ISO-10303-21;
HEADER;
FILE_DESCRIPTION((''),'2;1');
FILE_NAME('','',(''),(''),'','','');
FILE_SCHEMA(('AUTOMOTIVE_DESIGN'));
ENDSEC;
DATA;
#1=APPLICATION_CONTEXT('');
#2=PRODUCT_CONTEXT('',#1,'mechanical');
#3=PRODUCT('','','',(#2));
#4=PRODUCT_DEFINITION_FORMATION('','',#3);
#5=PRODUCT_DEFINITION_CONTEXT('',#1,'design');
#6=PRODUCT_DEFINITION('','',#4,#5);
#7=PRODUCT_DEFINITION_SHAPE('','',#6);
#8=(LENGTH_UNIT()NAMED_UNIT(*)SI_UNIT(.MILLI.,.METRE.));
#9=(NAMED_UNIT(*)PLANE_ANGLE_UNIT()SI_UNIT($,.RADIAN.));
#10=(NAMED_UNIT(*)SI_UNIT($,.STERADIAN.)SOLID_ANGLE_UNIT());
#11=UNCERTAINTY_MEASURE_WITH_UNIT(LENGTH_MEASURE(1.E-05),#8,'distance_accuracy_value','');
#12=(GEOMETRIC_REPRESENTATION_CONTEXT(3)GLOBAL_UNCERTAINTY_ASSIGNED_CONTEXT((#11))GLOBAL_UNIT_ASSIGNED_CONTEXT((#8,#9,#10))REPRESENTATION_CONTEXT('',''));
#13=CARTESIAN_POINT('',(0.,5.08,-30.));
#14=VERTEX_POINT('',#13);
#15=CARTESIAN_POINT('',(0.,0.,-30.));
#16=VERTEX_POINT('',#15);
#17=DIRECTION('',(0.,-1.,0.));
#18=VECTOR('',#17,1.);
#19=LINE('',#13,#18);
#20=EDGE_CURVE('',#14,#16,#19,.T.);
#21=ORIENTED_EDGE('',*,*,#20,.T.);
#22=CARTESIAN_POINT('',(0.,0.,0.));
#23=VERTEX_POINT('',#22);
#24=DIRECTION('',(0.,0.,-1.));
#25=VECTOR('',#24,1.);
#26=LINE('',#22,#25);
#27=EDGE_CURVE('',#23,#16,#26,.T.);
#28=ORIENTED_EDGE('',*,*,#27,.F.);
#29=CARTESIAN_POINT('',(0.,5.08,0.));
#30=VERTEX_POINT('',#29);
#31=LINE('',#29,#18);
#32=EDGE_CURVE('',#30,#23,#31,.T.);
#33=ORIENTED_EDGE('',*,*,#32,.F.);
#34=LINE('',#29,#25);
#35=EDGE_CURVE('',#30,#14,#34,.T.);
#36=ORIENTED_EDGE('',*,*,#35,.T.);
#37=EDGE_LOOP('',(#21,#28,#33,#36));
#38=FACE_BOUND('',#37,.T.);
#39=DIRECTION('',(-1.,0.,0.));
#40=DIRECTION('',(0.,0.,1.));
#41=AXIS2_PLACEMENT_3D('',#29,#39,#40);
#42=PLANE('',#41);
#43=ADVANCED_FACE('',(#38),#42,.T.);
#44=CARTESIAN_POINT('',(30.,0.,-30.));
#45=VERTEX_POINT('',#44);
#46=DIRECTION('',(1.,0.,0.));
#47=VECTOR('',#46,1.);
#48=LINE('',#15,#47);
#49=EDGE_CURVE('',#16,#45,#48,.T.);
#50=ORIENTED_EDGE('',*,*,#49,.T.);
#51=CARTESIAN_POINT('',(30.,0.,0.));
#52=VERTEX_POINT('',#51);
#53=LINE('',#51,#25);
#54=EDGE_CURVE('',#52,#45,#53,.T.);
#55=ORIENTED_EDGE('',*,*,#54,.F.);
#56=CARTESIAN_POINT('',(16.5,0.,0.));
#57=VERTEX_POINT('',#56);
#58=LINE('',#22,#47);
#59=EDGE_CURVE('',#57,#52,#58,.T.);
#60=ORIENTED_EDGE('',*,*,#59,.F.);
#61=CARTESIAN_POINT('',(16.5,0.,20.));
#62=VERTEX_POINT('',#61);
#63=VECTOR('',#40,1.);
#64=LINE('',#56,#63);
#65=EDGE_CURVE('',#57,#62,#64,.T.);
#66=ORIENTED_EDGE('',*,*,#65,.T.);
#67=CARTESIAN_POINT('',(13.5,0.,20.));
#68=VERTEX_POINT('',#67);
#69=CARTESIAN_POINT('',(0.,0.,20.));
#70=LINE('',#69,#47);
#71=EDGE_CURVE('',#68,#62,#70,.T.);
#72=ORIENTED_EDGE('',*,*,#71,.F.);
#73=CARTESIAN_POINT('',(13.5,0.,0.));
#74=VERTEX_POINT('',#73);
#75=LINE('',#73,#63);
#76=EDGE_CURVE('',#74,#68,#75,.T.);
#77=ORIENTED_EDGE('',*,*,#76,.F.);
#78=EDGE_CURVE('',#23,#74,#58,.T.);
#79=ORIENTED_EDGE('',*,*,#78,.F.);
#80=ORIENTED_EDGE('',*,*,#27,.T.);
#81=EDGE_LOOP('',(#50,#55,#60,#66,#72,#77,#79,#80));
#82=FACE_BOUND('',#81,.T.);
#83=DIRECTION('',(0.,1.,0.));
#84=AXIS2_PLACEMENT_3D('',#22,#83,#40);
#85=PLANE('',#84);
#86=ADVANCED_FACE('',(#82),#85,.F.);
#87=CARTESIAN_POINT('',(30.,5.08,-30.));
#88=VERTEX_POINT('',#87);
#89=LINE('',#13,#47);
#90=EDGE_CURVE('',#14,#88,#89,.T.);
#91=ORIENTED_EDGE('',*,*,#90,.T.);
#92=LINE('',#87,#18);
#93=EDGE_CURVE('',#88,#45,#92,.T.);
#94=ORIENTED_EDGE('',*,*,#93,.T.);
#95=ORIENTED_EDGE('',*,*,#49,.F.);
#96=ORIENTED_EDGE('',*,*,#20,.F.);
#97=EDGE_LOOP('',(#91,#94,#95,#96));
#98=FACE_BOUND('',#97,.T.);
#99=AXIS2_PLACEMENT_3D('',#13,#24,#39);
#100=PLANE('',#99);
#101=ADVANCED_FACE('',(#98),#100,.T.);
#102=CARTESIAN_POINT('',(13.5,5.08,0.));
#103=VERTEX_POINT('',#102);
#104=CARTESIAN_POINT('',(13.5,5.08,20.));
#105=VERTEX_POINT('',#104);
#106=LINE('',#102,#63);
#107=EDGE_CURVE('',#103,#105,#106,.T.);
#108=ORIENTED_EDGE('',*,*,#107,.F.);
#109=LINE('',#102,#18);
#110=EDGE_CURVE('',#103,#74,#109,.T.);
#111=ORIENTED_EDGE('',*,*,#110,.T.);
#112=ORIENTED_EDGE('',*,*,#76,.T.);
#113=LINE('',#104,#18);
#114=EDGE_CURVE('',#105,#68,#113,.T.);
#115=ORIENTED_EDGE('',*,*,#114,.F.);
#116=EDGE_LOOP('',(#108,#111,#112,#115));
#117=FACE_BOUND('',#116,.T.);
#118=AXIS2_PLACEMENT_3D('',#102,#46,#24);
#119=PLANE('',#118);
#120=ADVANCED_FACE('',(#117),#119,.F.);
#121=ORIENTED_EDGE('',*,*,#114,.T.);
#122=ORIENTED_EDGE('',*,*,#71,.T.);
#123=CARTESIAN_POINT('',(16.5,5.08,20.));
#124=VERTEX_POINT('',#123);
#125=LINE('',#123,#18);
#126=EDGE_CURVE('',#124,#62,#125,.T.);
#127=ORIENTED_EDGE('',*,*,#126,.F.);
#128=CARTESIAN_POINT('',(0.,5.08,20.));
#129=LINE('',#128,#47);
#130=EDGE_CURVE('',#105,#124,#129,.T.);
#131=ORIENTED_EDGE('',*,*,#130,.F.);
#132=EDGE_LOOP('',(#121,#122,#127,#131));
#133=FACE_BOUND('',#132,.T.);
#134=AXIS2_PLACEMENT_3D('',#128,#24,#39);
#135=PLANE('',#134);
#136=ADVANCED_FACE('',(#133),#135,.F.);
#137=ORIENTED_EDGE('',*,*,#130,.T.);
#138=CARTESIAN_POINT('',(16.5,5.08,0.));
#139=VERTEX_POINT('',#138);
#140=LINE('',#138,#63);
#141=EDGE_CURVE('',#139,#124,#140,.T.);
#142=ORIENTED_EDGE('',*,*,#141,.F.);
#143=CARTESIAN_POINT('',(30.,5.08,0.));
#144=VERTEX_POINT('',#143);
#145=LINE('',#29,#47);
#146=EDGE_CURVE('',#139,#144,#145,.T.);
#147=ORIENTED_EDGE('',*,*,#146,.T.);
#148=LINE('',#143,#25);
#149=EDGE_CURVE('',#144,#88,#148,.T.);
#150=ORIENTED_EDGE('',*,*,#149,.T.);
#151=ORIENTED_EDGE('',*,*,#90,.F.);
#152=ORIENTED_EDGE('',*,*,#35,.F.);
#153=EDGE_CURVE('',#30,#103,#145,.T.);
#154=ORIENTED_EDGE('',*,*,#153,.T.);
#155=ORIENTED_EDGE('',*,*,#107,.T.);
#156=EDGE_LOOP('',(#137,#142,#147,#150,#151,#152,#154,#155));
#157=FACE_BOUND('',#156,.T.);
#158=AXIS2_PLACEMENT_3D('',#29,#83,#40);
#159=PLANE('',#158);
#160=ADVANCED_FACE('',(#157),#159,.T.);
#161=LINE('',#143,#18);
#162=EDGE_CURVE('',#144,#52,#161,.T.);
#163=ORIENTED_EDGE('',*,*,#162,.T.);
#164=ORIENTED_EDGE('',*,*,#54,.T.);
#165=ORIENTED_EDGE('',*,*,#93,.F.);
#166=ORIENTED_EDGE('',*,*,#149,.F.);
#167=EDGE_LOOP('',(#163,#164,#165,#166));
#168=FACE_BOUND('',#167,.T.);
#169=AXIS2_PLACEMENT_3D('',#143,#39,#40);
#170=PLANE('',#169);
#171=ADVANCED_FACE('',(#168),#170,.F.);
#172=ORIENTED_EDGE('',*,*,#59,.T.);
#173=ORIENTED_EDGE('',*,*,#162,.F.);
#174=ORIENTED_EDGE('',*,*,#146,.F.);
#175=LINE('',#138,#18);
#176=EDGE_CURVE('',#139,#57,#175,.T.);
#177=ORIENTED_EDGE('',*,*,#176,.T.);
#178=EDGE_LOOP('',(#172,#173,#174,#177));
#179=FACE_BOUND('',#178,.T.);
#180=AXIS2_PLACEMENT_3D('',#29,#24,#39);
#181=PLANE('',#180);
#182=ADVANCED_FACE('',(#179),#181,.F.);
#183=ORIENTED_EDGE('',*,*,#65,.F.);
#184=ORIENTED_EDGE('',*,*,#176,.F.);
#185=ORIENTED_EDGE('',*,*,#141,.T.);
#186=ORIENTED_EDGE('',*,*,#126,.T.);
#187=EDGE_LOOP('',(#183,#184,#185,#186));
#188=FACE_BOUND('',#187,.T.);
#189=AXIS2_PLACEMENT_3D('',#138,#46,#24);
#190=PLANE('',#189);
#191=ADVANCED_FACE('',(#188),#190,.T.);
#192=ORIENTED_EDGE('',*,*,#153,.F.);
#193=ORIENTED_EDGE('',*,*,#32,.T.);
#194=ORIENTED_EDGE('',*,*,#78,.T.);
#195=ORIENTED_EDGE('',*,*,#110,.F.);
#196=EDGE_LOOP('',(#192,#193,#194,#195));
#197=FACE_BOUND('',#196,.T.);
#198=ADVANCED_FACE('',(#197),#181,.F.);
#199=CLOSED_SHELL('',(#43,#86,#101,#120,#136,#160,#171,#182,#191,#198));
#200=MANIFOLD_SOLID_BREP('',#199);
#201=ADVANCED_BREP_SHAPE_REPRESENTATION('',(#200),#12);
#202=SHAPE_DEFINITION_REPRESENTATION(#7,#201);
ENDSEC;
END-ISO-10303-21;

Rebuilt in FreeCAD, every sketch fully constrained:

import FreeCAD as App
import Part
import Sketcher
from FreeCAD import Vector

doc = App.newDocument("Part")
body = doc.addObject("PartDesign::Body", "Body")

# Sketch on XZ plane
sketch1 = body.newObject("Sketcher::SketchObject", "Sketch")
sketch1.AttachmentSupport = (doc.getObject("XZ_Plane"), [""])
sketch1.MapMode = "FlatFace"
sketch1.addGeometry([
    Part.LineSegment(Vector(30, 0, 0), Vector(30, -30, 0)),  # 0
    Part.LineSegment(Vector(30, -30, 0), Vector(0, -30, 0)),  # 1
    Part.LineSegment(Vector(0, -30, 0), Vector(0, 0, 0)),  # 2
    Part.LineSegment(Vector(0, 0, 0), Vector(13.5, 0, 0)),  # 3
    Part.LineSegment(Vector(13.5, 0, 0), Vector(13.5, 20, 0)),  # 4
    Part.LineSegment(Vector(13.5, 20, 0), Vector(16.5, 20, 0)),  # 5
    Part.LineSegment(Vector(16.5, 20, 0), Vector(16.5, 0, 0)),  # 6
    Part.LineSegment(Vector(16.5, 0, 0), Vector(30, 0, 0)),  # 7
], False)
sketch1.addConstraint([
    Sketcher.Constraint("Coincident", 0, 2, 1, 1),
    Sketcher.Constraint("Coincident", 1, 2, 2, 1),
    Sketcher.Constraint("Coincident", 2, 2, 3, 1),
    Sketcher.Constraint("Coincident", 3, 2, 4, 1),
    Sketcher.Constraint("Coincident", 4, 2, 5, 1),
    Sketcher.Constraint("Coincident", 5, 2, 6, 1),
    Sketcher.Constraint("Coincident", 6, 2, 7, 1),
    Sketcher.Constraint("Coincident", 7, 2, 0, 1),
    Sketcher.Constraint("Vertical", 0),
    Sketcher.Constraint("Horizontal", 1),
    Sketcher.Constraint("Vertical", 2),
    Sketcher.Constraint("Horizontal", 3),
    Sketcher.Constraint("Vertical", 4),
    Sketcher.Constraint("Horizontal", 5),
    Sketcher.Constraint("Vertical", 6),
    Sketcher.Constraint("Horizontal", 7),
    Sketcher.Constraint("Coincident", 2, 2, -1, 1),
    Sketcher.Constraint("PointOnObject", 6, 2, -1),
    Sketcher.Constraint("Equal", 3, 7),
    Sketcher.Constraint("Equal", 1, 0),
    Sketcher.Constraint("DistanceX", 1, 2, 1, 1, 30.0),
    Sketcher.Constraint("DistanceX", 5, 1, 5, 2, 3.0),
    Sketcher.Constraint("DistanceY", 4, 1, 4, 2, 20.0),
])
pad1 = body.newObject("PartDesign::Pad", "Pad")
pad1.Profile = sketch1
pad1.Length = 5.08
pad1.Reversed = True

doc.recompute()
